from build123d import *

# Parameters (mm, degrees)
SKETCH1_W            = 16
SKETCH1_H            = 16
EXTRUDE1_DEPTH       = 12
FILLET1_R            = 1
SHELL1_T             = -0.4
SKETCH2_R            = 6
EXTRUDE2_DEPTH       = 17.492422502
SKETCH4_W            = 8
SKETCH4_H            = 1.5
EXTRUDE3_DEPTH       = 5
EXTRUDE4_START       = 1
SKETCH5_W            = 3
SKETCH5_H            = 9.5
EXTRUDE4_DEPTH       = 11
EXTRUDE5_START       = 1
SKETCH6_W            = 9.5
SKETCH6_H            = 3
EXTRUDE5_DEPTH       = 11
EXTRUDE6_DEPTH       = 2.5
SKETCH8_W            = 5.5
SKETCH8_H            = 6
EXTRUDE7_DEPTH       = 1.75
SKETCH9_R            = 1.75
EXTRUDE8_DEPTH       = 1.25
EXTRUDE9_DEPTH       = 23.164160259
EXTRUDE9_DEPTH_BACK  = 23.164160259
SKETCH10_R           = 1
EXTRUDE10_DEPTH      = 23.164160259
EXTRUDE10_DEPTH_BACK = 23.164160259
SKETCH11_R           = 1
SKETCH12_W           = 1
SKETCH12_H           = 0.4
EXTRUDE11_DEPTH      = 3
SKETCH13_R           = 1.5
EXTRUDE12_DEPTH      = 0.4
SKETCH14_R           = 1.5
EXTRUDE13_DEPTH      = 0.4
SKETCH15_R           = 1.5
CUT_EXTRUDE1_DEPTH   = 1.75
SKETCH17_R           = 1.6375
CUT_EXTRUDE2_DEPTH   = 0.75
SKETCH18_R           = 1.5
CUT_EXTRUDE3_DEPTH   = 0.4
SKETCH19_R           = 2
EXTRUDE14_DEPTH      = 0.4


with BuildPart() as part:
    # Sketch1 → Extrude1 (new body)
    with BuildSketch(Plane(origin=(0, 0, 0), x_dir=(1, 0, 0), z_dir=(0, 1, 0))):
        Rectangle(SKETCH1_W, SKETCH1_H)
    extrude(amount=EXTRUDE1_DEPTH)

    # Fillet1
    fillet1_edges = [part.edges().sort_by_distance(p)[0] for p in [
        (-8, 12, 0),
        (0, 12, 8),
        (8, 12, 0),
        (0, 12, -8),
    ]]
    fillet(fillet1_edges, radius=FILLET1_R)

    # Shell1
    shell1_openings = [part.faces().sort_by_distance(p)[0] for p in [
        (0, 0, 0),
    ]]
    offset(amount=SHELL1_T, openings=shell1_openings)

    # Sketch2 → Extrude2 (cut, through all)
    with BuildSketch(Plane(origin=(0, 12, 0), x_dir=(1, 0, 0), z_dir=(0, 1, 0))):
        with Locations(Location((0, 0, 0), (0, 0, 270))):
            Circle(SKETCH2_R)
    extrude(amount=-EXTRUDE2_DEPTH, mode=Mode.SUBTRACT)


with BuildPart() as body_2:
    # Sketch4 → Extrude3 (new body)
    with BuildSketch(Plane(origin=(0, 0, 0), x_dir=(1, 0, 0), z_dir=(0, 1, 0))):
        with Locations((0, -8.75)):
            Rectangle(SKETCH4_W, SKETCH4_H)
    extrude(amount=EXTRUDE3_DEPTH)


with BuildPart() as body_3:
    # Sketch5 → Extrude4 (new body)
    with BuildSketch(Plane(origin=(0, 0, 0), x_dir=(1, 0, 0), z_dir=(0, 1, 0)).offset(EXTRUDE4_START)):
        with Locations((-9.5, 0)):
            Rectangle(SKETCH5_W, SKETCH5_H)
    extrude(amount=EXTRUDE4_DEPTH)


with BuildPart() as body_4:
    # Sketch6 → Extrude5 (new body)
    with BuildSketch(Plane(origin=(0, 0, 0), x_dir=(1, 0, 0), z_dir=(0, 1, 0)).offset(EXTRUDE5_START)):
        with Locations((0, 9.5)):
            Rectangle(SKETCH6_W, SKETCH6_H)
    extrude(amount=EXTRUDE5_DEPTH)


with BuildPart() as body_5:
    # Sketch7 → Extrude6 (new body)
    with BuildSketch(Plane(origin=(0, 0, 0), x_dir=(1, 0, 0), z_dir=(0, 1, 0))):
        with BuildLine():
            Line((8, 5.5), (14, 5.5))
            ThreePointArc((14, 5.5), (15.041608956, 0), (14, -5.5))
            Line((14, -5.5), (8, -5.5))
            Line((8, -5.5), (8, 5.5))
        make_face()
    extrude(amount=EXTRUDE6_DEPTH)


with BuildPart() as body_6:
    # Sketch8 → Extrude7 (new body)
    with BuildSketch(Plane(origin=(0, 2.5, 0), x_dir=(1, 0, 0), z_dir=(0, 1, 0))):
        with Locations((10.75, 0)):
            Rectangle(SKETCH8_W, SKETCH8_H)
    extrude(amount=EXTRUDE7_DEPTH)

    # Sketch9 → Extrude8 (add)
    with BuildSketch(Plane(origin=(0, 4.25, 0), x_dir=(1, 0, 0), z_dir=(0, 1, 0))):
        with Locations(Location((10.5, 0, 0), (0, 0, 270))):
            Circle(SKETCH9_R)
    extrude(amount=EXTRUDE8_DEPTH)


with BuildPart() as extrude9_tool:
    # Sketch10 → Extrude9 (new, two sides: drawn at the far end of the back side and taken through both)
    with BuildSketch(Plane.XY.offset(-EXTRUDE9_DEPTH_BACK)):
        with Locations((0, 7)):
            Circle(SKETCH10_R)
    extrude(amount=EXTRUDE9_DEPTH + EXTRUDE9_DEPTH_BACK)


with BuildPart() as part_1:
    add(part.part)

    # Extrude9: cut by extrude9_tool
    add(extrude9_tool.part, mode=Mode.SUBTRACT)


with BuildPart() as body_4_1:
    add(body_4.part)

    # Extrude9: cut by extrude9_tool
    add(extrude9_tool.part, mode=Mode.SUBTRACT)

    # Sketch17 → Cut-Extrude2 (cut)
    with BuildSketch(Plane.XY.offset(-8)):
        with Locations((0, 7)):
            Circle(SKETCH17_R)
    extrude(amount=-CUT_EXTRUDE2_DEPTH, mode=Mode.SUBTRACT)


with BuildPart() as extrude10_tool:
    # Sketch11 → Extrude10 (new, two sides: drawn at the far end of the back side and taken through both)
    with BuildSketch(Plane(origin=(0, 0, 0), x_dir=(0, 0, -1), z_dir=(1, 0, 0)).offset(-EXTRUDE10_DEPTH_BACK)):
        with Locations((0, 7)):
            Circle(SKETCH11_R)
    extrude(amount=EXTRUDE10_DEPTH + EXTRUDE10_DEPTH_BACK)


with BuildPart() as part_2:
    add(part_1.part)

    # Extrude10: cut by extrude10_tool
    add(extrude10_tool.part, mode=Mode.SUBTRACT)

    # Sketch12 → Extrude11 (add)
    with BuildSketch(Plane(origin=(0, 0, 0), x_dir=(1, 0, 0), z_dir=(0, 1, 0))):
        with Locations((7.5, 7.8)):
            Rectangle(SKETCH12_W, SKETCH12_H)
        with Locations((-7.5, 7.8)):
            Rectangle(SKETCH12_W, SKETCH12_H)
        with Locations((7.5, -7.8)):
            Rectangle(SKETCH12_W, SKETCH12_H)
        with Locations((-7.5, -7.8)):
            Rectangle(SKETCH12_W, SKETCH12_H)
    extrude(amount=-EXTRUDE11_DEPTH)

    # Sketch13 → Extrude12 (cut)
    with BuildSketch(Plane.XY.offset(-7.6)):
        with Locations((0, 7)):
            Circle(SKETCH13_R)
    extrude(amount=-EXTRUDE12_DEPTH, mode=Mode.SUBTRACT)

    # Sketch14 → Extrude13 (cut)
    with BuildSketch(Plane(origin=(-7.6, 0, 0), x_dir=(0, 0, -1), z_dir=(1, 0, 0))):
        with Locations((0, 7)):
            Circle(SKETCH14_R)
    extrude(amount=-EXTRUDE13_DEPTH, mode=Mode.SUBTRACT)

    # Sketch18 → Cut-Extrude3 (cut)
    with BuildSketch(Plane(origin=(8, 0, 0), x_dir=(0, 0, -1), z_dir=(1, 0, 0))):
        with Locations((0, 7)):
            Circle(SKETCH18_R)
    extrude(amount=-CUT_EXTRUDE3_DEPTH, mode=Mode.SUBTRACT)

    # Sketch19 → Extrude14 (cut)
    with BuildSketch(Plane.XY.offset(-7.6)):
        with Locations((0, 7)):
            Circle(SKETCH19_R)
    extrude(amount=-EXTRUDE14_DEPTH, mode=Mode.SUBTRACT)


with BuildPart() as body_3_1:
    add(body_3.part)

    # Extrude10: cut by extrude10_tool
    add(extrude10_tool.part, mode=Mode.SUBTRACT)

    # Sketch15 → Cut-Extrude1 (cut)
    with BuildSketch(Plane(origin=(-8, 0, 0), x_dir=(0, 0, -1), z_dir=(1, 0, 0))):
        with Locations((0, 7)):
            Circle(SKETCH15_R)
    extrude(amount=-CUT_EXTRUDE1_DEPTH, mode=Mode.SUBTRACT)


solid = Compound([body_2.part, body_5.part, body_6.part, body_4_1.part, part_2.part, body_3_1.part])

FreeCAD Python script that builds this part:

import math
import FreeCAD as App
import Part
import Sketcher

V = App.Vector
Q = App.Units.Quantity


def edges_at(feature, points):
    """Names of the edges that pass closest to the given points."""
    edges = feature.Shape.Edges
    near = lambda p: min(range(len(edges)), key=lambda i: edges[i].distToShape(Part.Vertex(*p))[0])
    return sorted({f"Edge{near(p) + 1}" for p in points})


def faces_at(feature, points):
    """Names of the faces that lie closest to the given points."""
    faces = feature.Shape.Faces
    near = lambda p: min(range(len(faces)), key=lambda i: faces[i].distToShape(Part.Vertex(*p))[0])
    return sorted({f"Face{near(p) + 1}" for p in points})

doc = App.newDocument("Part")
body = doc.addObject("PartDesign::Body", "Body")

# Sketch on XZ plane
sketch1 = body.newObject("Sketcher::SketchObject", "Sketch")
sketch1.AttachmentSupport = (doc.getObject("XZ_Plane"), [""])
sketch1.MapMode = "FlatFace"
sketch1.addGeometry([
    Part.LineSegment(V(-8, -8, 0), V(-8, 8, 0)),
    Part.LineSegment(V(-8, 8, 0), V(8, 8, 0)),
    Part.LineSegment(V(8, 8, 0), V(8, -8, 0)),
    Part.LineSegment(V(8, -8, 0), V(-8, -8, 0)),
], False)
sketch1.addConstraint([
    Sketcher.Constraint("Coincident", 0, 2, 1, 1),
    Sketcher.Constraint("Coincident", 1, 2, 2, 1),
    Sketcher.Constraint("Coincident", 2, 2, 3, 1),
    Sketcher.Constraint("Coincident", 3, 2, 0, 1),
    Sketcher.Constraint("Vertical", 0),
    Sketcher.Constraint("Horizontal", 1),
    Sketcher.Constraint("Vertical", 2),
    Sketcher.Constraint("Horizontal", 3),
    Sketcher.Constraint("Symmetric", 0, 2, 2, 2, -1, 1),
    Sketcher.Constraint("Equal", 3, 0),
    Sketcher.Constraint("DistanceX", 1, 1, 1, 2, Q("16 mm")),
])
pad1 = body.newObject("PartDesign::Pad", "Pad")
pad1.Profile = sketch1
pad1.Length = 12
pad1.Reversed = True
doc.recompute()

fillet = body.newObject("PartDesign::Fillet", "Fillet")
fillet.Base = (pad1, edges_at(pad1, [
    (-8, 12, 0),
    (0, 12, 8),
    (8, 12, 0),
    (0, 12, -8),
]))
fillet.Radius = 1
doc.recompute()

thickness = body.newObject("PartDesign::Thickness", "Thickness")
thickness.Base = (fillet, faces_at(fillet, [(0, 0, 0)]))
thickness.Value = 0.4
thickness.Reversed = True
thickness.Join = "Arc"

# Sketch on XZ plane
sketch2 = body.newObject("Sketcher::SketchObject", "Sketch001")
sketch2.AttachmentSupport = (doc.getObject("XZ_Plane"), [""])
sketch2.MapMode = "FlatFace"
sketch2.AttachmentOffset = App.Placement(V(0, 0, -12), App.Rotation())
sketch2.addGeometry(Part.Circle(V(0, 0, 0), V(0, 0, 1), 6), False)
sketch2.addConstraint([
    Sketcher.Constraint("Coincident", 0, 3, -1, 1),
    Sketcher.Constraint("Diameter", 0, Q("12 mm")),
])
pocket1 = body.newObject("PartDesign::Pocket", "Pocket")
pocket1.Profile = sketch2
pocket1.Type = "ThroughAll"
pocket1.Reversed = True
body2 = doc.addObject("PartDesign::Body", "Body001")

# Sketch on XZ plane
sketch3 = body2.newObject("Sketcher::SketchObject", "Sketch002")
sketch3.AttachmentSupport = (doc.getObject("XZ_Plane001"), [""])
sketch3.MapMode = "FlatFace"
sketch3.addGeometry([
    Part.LineSegment(V(-4, 8, 0), V(-4, 9.5, 0)),
    Part.LineSegment(V(-4, 9.5, 0), V(4, 9.5, 0)),
    Part.LineSegment(V(4, 9.5, 0), V(4, 8, 0)),
    Part.LineSegment(V(4, 8, 0), V(-4, 8, 0)),
], False)
sketch3.addConstraint([
    Sketcher.Constraint("Coincident", 0, 2, 1, 1),
    Sketcher.Constraint("Coincident", 1, 2, 2, 1),
    Sketcher.Constraint("Coincident", 2, 2, 3, 1),
    Sketcher.Constraint("Coincident", 3, 2, 0, 1),
    Sketcher.Constraint("Vertical", 0),
    Sketcher.Constraint("Horizontal", 1),
    Sketcher.Constraint("Vertical", 2),
    Sketcher.Constraint("Horizontal", 3),
    Sketcher.Constraint("DistanceX", 1, 1, 1, 2, Q("8 mm")),
    Sketcher.Constraint("DistanceY", 0, 1, 0, 2, Q("1.5 mm")),
    Sketcher.Constraint("DistanceX", 0, 2, -1, 1, Q("4 mm")),
    Sketcher.Constraint("DistanceY", -1, 1, 2, 2, Q("8 mm")),
])
pad2 = body2.newObject("PartDesign::Pad", "Pad001")
pad2.Profile = sketch3
pad2.Length = 5
pad2.Reversed = True
body3 = doc.addObject("PartDesign::Body", "Body002")

# Sketch on XZ plane
sketch4 = body3.newObject("Sketcher::SketchObject", "Sketch003")
sketch4.AttachmentSupport = (doc.getObject("XZ_Plane002"), [""])
sketch4.MapMode = "FlatFace"
sketch4.AttachmentOffset = App.Placement(V(0, 0, -1), App.Rotation())
sketch4.addGeometry([
    Part.LineSegment(V(-11, -4.8, 0), V(-11, 4.8, 0)),
    Part.LineSegment(V(-11, 4.8, 0), V(-8, 4.8, 0)),
    Part.LineSegment(V(-8, 4.8, 0), V(-8, -4.8, 0)),
    Part.LineSegment(V(-8, -4.8, 0), V(-11, -4.8, 0)),
], False)
sketch4.addConstraint([
    Sketcher.Constraint("Coincident", 0, 2, 1, 1),
    Sketcher.Constraint("Coincident", 1, 2, 2, 1),
    Sketcher.Constraint("Coincident", 2, 2, 3, 1),
    Sketcher.Constraint("Coincident", 3, 2, 0, 1),
    Sketcher.Constraint("Vertical", 0),
    Sketcher.Constraint("Horizontal", 1),
    Sketcher.Constraint("Vertical", 2),
    Sketcher.Constraint("Horizontal", 3),
    Sketcher.Constraint("DistanceX", 1, 1, 1, 2, Q("3 mm")),
    Sketcher.Constraint("DistanceY", 0, 1, 0, 2, Q("9.5 mm")),
    Sketcher.Constraint("DistanceX", 0, 2, -1, 1, Q("11 mm")),
    Sketcher.Constraint("DistanceY", -1, 1, 0, 2, Q("4.75 mm")),
])
pad3 = body3.newObject("PartDesign::Pad", "Pad002")
pad3.Profile = sketch4
pad3.Length = 11
pad3.Reversed = True
body4 = doc.addObject("PartDesign::Body", "Body003")

# Sketch on XZ plane
sketch5 = body4.newObject("Sketcher::SketchObject", "Sketch004")
sketch5.AttachmentSupport = (doc.getObject("XZ_Plane003"), [""])
sketch5.MapMode = "FlatFace"
sketch5.AttachmentOffset = App.Placement(V(0, 0, -1), App.Rotation())
sketch5.addGeometry([
    Part.LineSegment(V(-4.8, -11, 0), V(-4.8, -8, 0)),
    Part.LineSegment(V(-4.8, -8, 0), V(4.8, -8, 0)),
    Part.LineSegment(V(4.8, -8, 0), V(4.8, -11, 0)),
    Part.LineSegment(V(4.8, -11, 0), V(-4.8, -11, 0)),
], False)
sketch5.addConstraint([
    Sketcher.Constraint("Coincident", 0, 2, 1, 1),
    Sketcher.Constraint("Coincident", 1, 2, 2, 1),
    Sketcher.Constraint("Coincident", 2, 2, 3, 1),
    Sketcher.Constraint("Coincident", 3, 2, 0, 1),
    Sketcher.Constraint("Vertical", 0),
    Sketcher.Constraint("Horizontal", 1),
    Sketcher.Constraint("Vertical", 2),
    Sketcher.Constraint("Horizontal", 3),
    Sketcher.Constraint("DistanceY", 0, 1, 0, 2, Q("3 mm")),
    Sketcher.Constraint("DistanceX", 1, 1, 1, 2, Q("9.5 mm")),
    Sketcher.Constraint("DistanceY", 0, 2, -1, 1, Q("8 mm")),
    Sketcher.Constraint("DistanceX", 0, 2, -1, 1, Q("4.75 mm")),
])
pad4 = body4.newObject("PartDesign::Pad", "Pad003")
pad4.Profile = sketch5
pad4.Length = 11
pad4.Reversed = True
body5 = doc.addObject("PartDesign::Body", "Body004")

# Sketch on XZ plane
sketch6 = body5.newObject("Sketcher::SketchObject", "Sketch005")
sketch6.AttachmentSupport = (doc.getObject("XZ_Plane004"), [""])
sketch6.MapMode = "FlatFace"
sketch6.addGeometry([
    Part.LineSegment(V(14, -6, 0), V(8, -6, 0)),
    Part.LineSegment(V(8, -6, 0), V(8, 6, 0)),
    Part.LineSegment(V(8, 6, 0), V(14, 6, 0)),
    Part.ArcOfCircle(Part.Circle(V(0, 0, 0), V(0, 0, 1), 15), math.radians(-21), math.radians(21)),
], False)
sketch6.addConstraint([
    Sketcher.Constraint("Coincident", 0, 2, 1, 1),
    Sketcher.Constraint("Coincident", 1, 2, 2, 1),
    Sketcher.Constraint("Coincident", 2, 2, 3, 2),
    Sketcher.Constraint("Coincident", 3, 1, 0, 1),
    Sketcher.Constraint("Horizontal", 0),
    Sketcher.Constraint("Vertical", 1),
    Sketcher.Constraint("Horizontal", 2),
    Sketcher.Constraint("Coincident", 3, 3, -1, 1),
    Sketcher.Constraint("Vertical", 2, 2, 3, 1),
    Sketcher.Constraint("DistanceX", 0, 2, 0, 1, Q("6 mm")),
    Sketcher.Constraint("DistanceY", 1, 1, 1, 2, Q("11 mm")),
    Sketcher.Constraint("DistanceX", -1, 1, 0, 2, Q("8 mm")),
])
pad5 = body5.newObject("PartDesign::Pad", "Pad004")
pad5.Profile = sketch6
pad5.Length = 2.5
pad5.Reversed = True
body6 = doc.addObject("PartDesign::Body", "Body005")

# Sketch on XZ plane
sketch7 = body6.newObject("Sketcher::SketchObject", "Sketch006")
sketch7.AttachmentSupport = (doc.getObject("XZ_Plane005"), [""])
sketch7.MapMode = "FlatFace"
sketch7.AttachmentOffset = App.Placement(V(0, 0, -2.5), App.Rotation())
sketch7.addGeometry([
    Part.LineSegment(V(8, -3, 0), V(8, 3, 0)),
    Part.LineSegment(V(8, 3, 0), V(14, 3, 0)),
    Part.LineSegment(V(14, 3, 0), V(14, -3, 0)),
    Part.LineSegment(V(14, -3, 0), V(8, -3, 0)),
], False)
sketch7.addConstraint([
    Sketcher.Constraint("Coincident", 0, 2, 1, 1),
    Sketcher.Constraint("Coincident", 1, 2, 2, 1),
    Sketcher.Constraint("Coincident", 2, 2, 3, 1),
    Sketcher.Constraint("Coincident", 3, 2, 0, 1),
    Sketcher.Constraint("Vertical", 0),
    Sketcher.Constraint("Horizontal", 1),
    Sketcher.Constraint("Vertical", 2),
    Sketcher.Constraint("Horizontal", 3),
    Sketcher.Constraint("DistanceY", 0, 1, 0, 2, Q("6 mm")),
    Sketcher.Constraint("DistanceX", 1, 1, 1, 2, Q("5.5 mm")),
    Sketcher.Constraint("DistanceX", -1, 1, 0, 2, Q("8 mm")),
    Sketcher.Constraint("DistanceY", -1, 1, 0, 2, Q("3 mm")),
])
pad6 = body6.newObject("PartDesign::Pad", "Pad005")
pad6.Profile = sketch7
pad6.Length = 1.75
pad6.Reversed = True

# Sketch on XZ plane
sketch8 = body6.newObject("Sketcher::SketchObject", "Sketch007")
sketch8.AttachmentSupport = (doc.getObject("XZ_Plane005"), [""])
sketch8.MapMode = "FlatFace"
sketch8.AttachmentOffset = App.Placement(V(0, 0, -4.25), App.Rotation())
sketch8.addGeometry(Part.Circle(V(10.5, 0, 0), V(0, 0, 1), 1.8), False)
sketch8.addConstraint([
    Sketcher.Constraint("PointOnObject", 0, 3, -1),
    Sketcher.Constraint("Diameter", 0, Q("3.5 mm")),
    Sketcher.Constraint("DistanceX", -1, 1, 0, 3, Q("10.5 mm")),
])
pad7 = body6.newObject("PartDesign::Pad", "Pad006")
pad7.Profile = sketch8
pad7.Length = 1.25
pad7.Reversed = True
body7 = doc.addObject("PartDesign::Body", "Body006")

# Sketch on XY plane
sketch9 = body7.newObject("Sketcher::SketchObject", "Sketch008")
sketch9.AttachmentSupport = (doc.getObject("XY_Plane006"), [""])
sketch9.MapMode = "FlatFace"
sketch9.addGeometry(Part.Circle(V(0, 7, 0), V(0, 0, 1), 1), False)
sketch9.addConstraint([
    Sketcher.Constraint("PointOnObject", 0, 3, -2),
    Sketcher.Constraint("Diameter", 0, Q("2 mm")),
    Sketcher.Constraint("DistanceY", -1, 1, 0, 3, Q("7 mm")),
])
pad8 = body7.newObject("PartDesign::Pad", "Pad007")
pad8.Profile = sketch9
pad8.Type = "TwoLengths"
pad8.Length = 23.16416
pad8.Length2 = 23.16416
doc.recompute()

body8 = doc.addObject("PartDesign::Body", "Body007")
body8.BaseFeature = body7
boolean = body.newObject("PartDesign::Boolean", "Boolean")
boolean.Type = "Cut"
boolean.addObjects([body8])
doc.recompute()

boolean2 = body4.newObject("PartDesign::Boolean", "Boolean001")
boolean2.Type = "Cut"
boolean2.addObjects([body7])

# Sketch on XY plane
sketch10 = body4.newObject("Sketcher::SketchObject", "Sketch009")
sketch10.AttachmentSupport = (doc.getObject("XY_Plane003"), [""])
sketch10.MapMode = "FlatFace"
sketch10.AttachmentOffset = App.Placement(V(0, 0, -8), App.Rotation())
sketch10.addGeometry(Part.Circle(V(0, 7, 0), V(0, 0, 1), 1.6), False)
sketch10.addConstraint([
    Sketcher.Constraint("PointOnObject", 0, 3, -2),
    Sketcher.Constraint("Diameter", 0, Q("3.275 mm")),
    Sketcher.Constraint("DistanceY", -1, 1, 0, 3, Q("7 mm")),
])
pocket2 = body4.newObject("PartDesign::Pocket", "Pocket001")
pocket2.Profile = sketch10
pocket2.Length = 0.75
body9 = doc.addObject("PartDesign::Body", "Body008")

# Sketch on YZ plane
sketch11 = body9.newObject("Sketcher::SketchObject", "Sketch010")
sketch11.AttachmentSupport = (doc.getObject("YZ_Plane008"), [""])
sketch11.MapMode = "FlatFace"
sketch11.addGeometry(Part.Circle(V(7, 0, 0), V(0, 0, 1), 1), False)
sketch11.addConstraint([
    Sketcher.Constraint("PointOnObject", 0, 3, -1),
    Sketcher.Constraint("Diameter", 0, Q("2 mm")),
    Sketcher.Constraint("DistanceX", -1, 1, 0, 3, Q("7 mm")),
])
pad9 = body9.newObject("PartDesign::Pad", "Pad008")
pad9.Profile = sketch11
pad9.Type = "TwoLengths"
pad9.Length = 23.16416
pad9.Length2 = 23.16416
doc.recompute()

body10 = doc.addObject("PartDesign::Body", "Body009")
body10.BaseFeature = body9
boolean3 = body.newObject("PartDesign::Boolean", "Boolean002")
boolean3.Type = "Cut"
boolean3.addObjects([body10])
doc.recompute()

# Sketch on XZ plane
sketch12 = body.newObject("Sketcher::SketchObject", "Sketch011")
sketch12.AttachmentSupport = (doc.getObject("XZ_Plane"), [""])
sketch12.MapMode = "FlatFace"
sketch12.addGeometry([
    Part.LineSegment(V(7, -8, 0), V(7, -7.6, 0)),  # 0
    Part.LineSegment(V(7, -7.6, 0), V(8, -7.6, 0)),  # 1
    Part.LineSegment(V(8, -7.6, 0), V(8, -8, 0)),  # 2
    Part.LineSegment(V(8, -8, 0), V(7, -8, 0)),  # 3
    Part.LineSegment(V(-8, -8, 0), V(-8, -7.6, 0)),  # 4
    Part.LineSegment(V(-8, -7.6, 0), V(-7, -7.6, 0)),  # 5
    Part.LineSegment(V(-7, -7.6, 0), V(-7, -8, 0)),  # 6
    Part.LineSegment(V(-7, -8, 0), V(-8, -8, 0)),  # 7
    Part.LineSegment(V(7, 7.6, 0), V(7, 8, 0)),  # 8
    Part.LineSegment(V(7, 8, 0), V(8, 8, 0)),  # 9
    Part.LineSegment(V(8, 8, 0), V(8, 7.6, 0)),  # 10
    Part.LineSegment(V(8, 7.6, 0), V(7, 7.6, 0)),  # 11
    Part.LineSegment(V(-8, 7.6, 0), V(-8, 8, 0)),  # 12
    Part.LineSegment(V(-8, 8, 0), V(-7, 8, 0)),  # 13
    Part.LineSegment(V(-7, 8, 0), V(-7, 7.6, 0)),  # 14
    Part.LineSegment(V(-7, 7.6, 0), V(-8, 7.6, 0)),  # 15
], False)
sketch12.addConstraint([
    Sketcher.Constraint("Coincident", 0, 2, 1, 1),
    Sketcher.Constraint("Coincident", 1, 2, 2, 1),
    Sketcher.Constraint("Coincident", 2, 2, 3, 1),
    Sketcher.Constraint("Coincident", 3, 2, 0, 1),
    Sketcher.Constraint("Coincident", 4, 2, 5, 1),
    Sketcher.Constraint("Coincident", 5, 2, 6, 1),
    Sketcher.Constraint("Coincident", 6, 2, 7, 1),
    Sketcher.Constraint("Coincident", 7, 2, 4, 1),
    Sketcher.Constraint("Coincident", 8, 2, 9, 1),
    Sketcher.Constraint("Coincident", 9, 2, 10, 1),
    Sketcher.Constraint("Coincident", 10, 2, 11, 1),
    Sketcher.Constraint("Coincident", 11, 2, 8, 1),
    Sketcher.Constraint("Coincident", 12, 2, 13, 1),
    Sketcher.Constraint("Coincident", 13, 2, 14, 1),
    Sketcher.Constraint("Coincident", 14, 2, 15, 1),
    Sketcher.Constraint("Coincident", 15, 2, 12, 1),
    Sketcher.Constraint("Vertical", 0),
    Sketcher.Constraint("Horizontal", 1),
    Sketcher.Constraint("Vertical", 2),
    Sketcher.Constraint("Horizontal", 3),
    Sketcher.Constraint("Vertical", 4),
    Sketcher.Constraint("Horizontal", 5),
    Sketcher.Constraint("Vertical", 6),
    Sketcher.Constraint("Horizontal", 7),
    Sketcher.Constraint("Vertical", 8),
    Sketcher.Constraint("Horizontal", 9),
    Sketcher.Constraint("Vertical", 10),
    Sketcher.Constraint("Horizontal", 11),
    Sketcher.Constraint("Vertical", 12),
    Sketcher.Constraint("Horizontal", 13),
    Sketcher.Constraint("Vertical", 14),
    Sketcher.Constraint("Horizontal", 15),
    Sketcher.Constraint("Symmetric", 6, 2, 8, 2, -1, 1),
    Sketcher.Constraint("Symmetric", 4, 2, 10, 2, -1, 1),
    Sketcher.Constraint("Symmetric", 2, 2, 12, 2, -1, 1),
    Sketcher.Constraint("Symmetric", 0, 2, 14, 2, -1, 1),
    Sketcher.Constraint("Symmetric", 1, 2, 4, 2, -2),
    Sketcher.Constraint("Symmetric", 3, 2, 6, 2, -2),
    Sketcher.Constraint("DistanceX", 1, 1, 1, 2, Q("1 mm")),
    Sketcher.Constraint("DistanceY", 0, 1, 0, 2, Q("0.4 mm")),
    Sketcher.Constraint("DistanceX", -1, 1, 0, 2, Q("7 mm")),
    Sketcher.Constraint("DistanceY", 2, 2, -1, 1, Q("8 mm")),
])
pad10 = body.newObject("PartDesign::Pad", "Pad009")
pad10.Profile = sketch12
pad10.Length = 3

# Sketch on XY plane
sketch13 = body.newObject("Sketcher::SketchObject", "Sketch012")
sketch13.AttachmentSupport = (doc.getObject("XY_Plane"), [""])
sketch13.MapMode = "FlatFace"
sketch13.AttachmentOffset = App.Placement(V(0, 0, -7.6), App.Rotation())
sketch13.addGeometry(Part.Circle(V(0, 7, 0), V(0, 0, 1), 1.5), False)
sketch13.addConstraint([
    Sketcher.Constraint("PointOnObject", 0, 3, -2),
    Sketcher.Constraint("Diameter", 0, Q("3 mm")),
    Sketcher.Constraint("DistanceY", -1, 1, 0, 3, Q("7 mm")),
])
pocket3 = body.newObject("PartDesign::Pocket", "Pocket002")
pocket3.Profile = sketch13
pocket3.Length = 0.4

# Sketch on YZ plane
sketch14 = body.newObject("Sketcher::SketchObject", "Sketch013")
sketch14.AttachmentSupport = (doc.getObject("YZ_Plane"), [""])
sketch14.MapMode = "FlatFace"
sketch14.AttachmentOffset = App.Placement(V(0, 0, -7.6), App.Rotation())
sketch14.addGeometry(Part.Circle(V(7, 0, 0), V(0, 0, 1), 1.5), False)
sketch14.addConstraint([
    Sketcher.Constraint("PointOnObject", 0, 3, -1),
    Sketcher.Constraint("Diameter", 0, Q("3 mm")),
    Sketcher.Constraint("DistanceX", -1, 1, 0, 3, Q("7 mm")),
])
pocket4 = body.newObject("PartDesign::Pocket", "Pocket003")
pocket4.Profile = sketch14
pocket4.Length = 0.4

# Sketch on YZ plane
sketch15 = body.newObject("Sketcher::SketchObject", "Sketch014")
sketch15.AttachmentSupport = (doc.getObject("YZ_Plane"), [""])
sketch15.MapMode = "FlatFace"
sketch15.AttachmentOffset = App.Placement(V(0, 0, 8), App.Rotation())
sketch15.addGeometry(Part.Circle(V(7, 0, 0), V(0, 0, 1), 1.5), False)
sketch15.addConstraint([
    Sketcher.Constraint("PointOnObject", 0, 3, -1),
    Sketcher.Constraint("Diameter", 0, Q("3 mm")),
    Sketcher.Constraint("DistanceX", -1, 1, 0, 3, Q("7 mm")),
])
pocket5 = body.newObject("PartDesign::Pocket", "Pocket004")
pocket5.Profile = sketch15
pocket5.Length = 0.4

# Sketch on XY plane
sketch16 = body.newObject("Sketcher::SketchObject", "Sketch015")
sketch16.AttachmentSupport = (doc.getObject("XY_Plane"), [""])
sketch16.MapMode = "FlatFace"
sketch16.AttachmentOffset = App.Placement(V(0, 0, -7.6), App.Rotation())
sketch16.addGeometry(Part.Circle(V(0, 7, 0), V(0, 0, 1), 2), False)
sketch16.addConstraint([
    Sketcher.Constraint("PointOnObject", 0, 3, -2),
    Sketcher.Constraint("Diameter", 0, Q("4 mm")),
    Sketcher.Constraint("DistanceY", -1, 1, 0, 3, Q("7 mm")),
])
pocket6 = body.newObject("PartDesign::Pocket", "Pocket005")
pocket6.Profile = sketch16
pocket6.Length = 0.4
doc.recompute()

boolean4 = body3.newObject("PartDesign::Boolean", "Boolean003")
boolean4.Type = "Cut"
boolean4.addObjects([body9])

# Sketch on YZ plane
sketch17 = body3.newObject("Sketcher::SketchObject", "Sketch016")
sketch17.AttachmentSupport = (doc.getObject("YZ_Plane002"), [""])
sketch17.MapMode = "FlatFace"
sketch17.AttachmentOffset = App.Placement(V(0, 0, -8), App.Rotation())
sketch17.addGeometry(Part.Circle(V(7, 0, 0), V(0, 0, 1), 1.5), False)
sketch17.addConstraint([
    Sketcher.Constraint("PointOnObject", 0, 3, -1),
    Sketcher.Constraint("Diameter", 0, Q("3 mm")),
    Sketcher.Constraint("DistanceX", -1, 1, 0, 3, Q("7 mm")),
])
pocket7 = body3.newObject("PartDesign::Pocket", "Pocket006")
pocket7.Profile = sketch17
pocket7.Length = 1.75

doc.recompute()
